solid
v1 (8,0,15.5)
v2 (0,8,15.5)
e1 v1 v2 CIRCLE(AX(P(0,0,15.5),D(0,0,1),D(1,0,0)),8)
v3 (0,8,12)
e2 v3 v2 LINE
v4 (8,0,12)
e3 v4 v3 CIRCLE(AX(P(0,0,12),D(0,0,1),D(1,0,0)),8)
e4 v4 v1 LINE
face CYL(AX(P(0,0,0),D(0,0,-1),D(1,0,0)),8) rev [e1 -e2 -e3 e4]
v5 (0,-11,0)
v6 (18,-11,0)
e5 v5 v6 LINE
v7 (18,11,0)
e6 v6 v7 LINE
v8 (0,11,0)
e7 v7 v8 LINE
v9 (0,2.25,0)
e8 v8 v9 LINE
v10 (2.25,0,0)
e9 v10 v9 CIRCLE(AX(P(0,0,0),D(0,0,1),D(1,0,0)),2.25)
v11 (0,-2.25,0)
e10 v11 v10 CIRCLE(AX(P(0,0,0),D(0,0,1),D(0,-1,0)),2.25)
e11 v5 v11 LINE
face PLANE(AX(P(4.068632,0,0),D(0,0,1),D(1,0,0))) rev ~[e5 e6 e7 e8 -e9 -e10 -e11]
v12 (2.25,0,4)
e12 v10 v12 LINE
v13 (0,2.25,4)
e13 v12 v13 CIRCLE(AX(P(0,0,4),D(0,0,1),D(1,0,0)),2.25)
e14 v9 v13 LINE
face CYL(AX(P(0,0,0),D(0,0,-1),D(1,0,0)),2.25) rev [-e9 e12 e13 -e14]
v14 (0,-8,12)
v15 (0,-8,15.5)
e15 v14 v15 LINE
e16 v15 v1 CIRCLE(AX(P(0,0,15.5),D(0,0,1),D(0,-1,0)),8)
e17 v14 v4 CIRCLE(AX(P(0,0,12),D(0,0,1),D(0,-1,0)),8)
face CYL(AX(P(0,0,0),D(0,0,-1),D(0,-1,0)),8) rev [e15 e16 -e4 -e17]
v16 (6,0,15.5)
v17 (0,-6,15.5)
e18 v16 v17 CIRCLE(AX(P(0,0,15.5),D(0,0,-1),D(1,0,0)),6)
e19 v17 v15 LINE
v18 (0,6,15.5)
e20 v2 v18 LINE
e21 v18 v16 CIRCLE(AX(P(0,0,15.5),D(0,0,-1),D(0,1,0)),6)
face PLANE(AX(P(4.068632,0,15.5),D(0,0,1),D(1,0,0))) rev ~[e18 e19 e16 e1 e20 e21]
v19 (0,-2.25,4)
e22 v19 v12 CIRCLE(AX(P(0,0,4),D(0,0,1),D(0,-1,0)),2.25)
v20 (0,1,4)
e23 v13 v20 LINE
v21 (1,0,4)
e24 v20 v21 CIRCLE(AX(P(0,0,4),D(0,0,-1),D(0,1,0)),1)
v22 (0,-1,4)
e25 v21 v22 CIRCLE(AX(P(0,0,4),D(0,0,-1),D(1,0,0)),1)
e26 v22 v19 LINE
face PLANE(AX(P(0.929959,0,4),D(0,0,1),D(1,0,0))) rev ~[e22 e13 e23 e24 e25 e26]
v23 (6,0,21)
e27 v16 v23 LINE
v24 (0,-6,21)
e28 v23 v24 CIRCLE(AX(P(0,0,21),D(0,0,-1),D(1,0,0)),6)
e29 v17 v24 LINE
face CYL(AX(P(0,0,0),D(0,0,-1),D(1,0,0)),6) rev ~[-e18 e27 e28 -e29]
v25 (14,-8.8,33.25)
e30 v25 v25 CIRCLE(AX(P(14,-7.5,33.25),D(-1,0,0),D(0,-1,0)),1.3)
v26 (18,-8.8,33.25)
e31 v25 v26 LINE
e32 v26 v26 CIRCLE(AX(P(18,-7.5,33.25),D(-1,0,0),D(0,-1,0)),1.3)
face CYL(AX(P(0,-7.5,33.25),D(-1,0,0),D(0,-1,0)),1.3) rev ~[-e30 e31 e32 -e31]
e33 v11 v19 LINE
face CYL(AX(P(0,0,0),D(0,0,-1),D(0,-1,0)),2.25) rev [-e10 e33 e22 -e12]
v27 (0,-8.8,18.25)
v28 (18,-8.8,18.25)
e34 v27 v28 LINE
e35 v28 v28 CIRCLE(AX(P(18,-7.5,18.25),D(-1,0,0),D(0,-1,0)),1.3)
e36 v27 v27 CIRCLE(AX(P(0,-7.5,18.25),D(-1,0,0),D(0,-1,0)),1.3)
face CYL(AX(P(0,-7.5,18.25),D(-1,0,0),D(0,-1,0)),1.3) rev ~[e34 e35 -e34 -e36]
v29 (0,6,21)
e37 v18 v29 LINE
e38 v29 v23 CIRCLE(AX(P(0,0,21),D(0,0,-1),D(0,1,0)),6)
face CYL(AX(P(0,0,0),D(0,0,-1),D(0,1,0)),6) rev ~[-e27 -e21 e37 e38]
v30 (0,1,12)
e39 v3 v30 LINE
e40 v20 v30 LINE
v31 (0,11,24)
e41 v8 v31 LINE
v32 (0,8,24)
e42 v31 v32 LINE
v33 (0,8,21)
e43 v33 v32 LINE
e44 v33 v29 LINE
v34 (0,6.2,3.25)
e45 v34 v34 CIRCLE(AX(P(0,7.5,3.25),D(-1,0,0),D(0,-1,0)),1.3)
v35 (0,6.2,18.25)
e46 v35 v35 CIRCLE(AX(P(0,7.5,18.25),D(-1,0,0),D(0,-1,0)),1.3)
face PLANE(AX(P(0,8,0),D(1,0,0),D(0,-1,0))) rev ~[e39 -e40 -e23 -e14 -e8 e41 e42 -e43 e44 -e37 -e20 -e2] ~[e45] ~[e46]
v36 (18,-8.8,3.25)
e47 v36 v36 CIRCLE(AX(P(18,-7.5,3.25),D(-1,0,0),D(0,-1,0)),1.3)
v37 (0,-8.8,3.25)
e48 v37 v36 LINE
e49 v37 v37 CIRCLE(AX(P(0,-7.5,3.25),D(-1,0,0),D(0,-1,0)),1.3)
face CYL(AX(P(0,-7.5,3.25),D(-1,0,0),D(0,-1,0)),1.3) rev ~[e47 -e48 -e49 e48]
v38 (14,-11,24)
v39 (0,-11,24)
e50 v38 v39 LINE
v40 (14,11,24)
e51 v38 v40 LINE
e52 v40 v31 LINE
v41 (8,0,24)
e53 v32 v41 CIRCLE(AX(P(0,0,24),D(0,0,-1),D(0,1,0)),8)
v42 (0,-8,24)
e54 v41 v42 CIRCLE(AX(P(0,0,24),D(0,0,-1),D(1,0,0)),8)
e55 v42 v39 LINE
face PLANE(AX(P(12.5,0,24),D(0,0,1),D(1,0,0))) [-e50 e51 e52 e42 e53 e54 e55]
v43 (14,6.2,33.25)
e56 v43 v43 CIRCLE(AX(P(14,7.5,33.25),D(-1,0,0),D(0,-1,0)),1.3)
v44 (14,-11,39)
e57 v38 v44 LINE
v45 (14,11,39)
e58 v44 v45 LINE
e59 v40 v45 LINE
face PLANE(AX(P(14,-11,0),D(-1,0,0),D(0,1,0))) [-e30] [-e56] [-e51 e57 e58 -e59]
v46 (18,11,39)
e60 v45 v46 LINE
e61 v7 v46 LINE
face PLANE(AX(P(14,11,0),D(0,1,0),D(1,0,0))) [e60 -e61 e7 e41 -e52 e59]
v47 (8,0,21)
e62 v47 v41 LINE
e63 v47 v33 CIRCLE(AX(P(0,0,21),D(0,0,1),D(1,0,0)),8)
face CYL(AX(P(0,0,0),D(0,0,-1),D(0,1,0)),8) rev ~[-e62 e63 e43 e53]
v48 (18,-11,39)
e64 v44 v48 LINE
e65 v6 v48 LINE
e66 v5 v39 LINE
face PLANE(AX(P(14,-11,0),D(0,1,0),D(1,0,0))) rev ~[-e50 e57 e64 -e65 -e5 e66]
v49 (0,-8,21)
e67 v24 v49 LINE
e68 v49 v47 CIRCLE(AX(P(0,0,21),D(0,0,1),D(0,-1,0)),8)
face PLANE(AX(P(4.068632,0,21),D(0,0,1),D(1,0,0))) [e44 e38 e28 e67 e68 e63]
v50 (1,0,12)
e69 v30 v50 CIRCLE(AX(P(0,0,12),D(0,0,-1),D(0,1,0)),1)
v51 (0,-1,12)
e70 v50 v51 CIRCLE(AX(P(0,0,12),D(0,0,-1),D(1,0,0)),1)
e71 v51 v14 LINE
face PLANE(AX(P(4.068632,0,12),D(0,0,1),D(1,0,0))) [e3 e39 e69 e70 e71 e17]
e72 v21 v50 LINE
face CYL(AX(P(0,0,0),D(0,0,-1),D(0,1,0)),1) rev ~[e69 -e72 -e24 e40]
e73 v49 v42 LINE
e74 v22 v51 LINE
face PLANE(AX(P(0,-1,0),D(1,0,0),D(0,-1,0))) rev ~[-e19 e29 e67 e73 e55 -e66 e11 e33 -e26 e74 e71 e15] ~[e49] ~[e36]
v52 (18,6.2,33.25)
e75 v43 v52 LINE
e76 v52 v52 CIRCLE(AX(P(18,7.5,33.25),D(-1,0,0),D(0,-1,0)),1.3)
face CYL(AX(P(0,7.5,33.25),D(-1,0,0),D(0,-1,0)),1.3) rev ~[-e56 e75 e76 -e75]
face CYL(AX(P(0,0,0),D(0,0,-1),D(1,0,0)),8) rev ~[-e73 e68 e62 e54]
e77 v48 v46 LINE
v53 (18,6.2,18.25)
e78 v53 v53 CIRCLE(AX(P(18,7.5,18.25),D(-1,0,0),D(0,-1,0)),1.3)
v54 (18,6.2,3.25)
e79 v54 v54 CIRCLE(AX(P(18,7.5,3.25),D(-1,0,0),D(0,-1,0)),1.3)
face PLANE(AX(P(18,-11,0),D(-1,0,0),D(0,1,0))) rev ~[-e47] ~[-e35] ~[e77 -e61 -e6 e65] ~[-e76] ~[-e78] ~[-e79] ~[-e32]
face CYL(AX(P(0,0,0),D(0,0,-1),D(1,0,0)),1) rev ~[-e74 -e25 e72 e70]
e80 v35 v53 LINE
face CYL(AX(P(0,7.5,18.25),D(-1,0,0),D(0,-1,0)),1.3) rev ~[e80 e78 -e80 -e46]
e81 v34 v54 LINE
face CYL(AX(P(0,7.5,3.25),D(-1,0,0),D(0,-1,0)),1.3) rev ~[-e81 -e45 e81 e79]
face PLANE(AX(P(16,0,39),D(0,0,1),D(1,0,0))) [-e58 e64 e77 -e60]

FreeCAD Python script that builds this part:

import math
import FreeCAD as App
import Part
import Sketcher
from FreeCAD import Vector


def add_polygon(sketch, points):
    """Adds a closed chain of lines whose ends are joined by coincident constraints."""
    first, n = sketch.GeometryCount, len(points)
    for a, b in zip(points, points[1:] + points[:1]):
        sketch.addGeometry(Part.LineSegment(App.Vector(*a, 0), App.Vector(*b, 0)), False)
    for i in range(n):
        sketch.addConstraint(Sketcher.Constraint("Coincident", first + i, 2, first + (i + 1) % n, 1))

doc = App.newDocument("Part")
body = doc.addObject("PartDesign::Body", "Body")

sketch1 = body.newObject("Sketcher::SketchObject", "Sketch")
sketch1.AttachmentSupport = (doc.getObject("XY_Plane"), [""])
sketch1.MapMode = "FlatFace"
sketch1.addGeometry(Part.LineSegment(Vector(11, 11, 0), Vector(0, 11, 0)), False)
sketch1.addGeometry(Part.LineSegment(Vector(0, 11, 0), Vector(0, 8, 0)), False)
sketch1.addGeometry(Part.ArcOfCircle(Part.Circle(Vector(0, 0, 0), Vector(0, 0, 1), 8), math.radians(0), math.radians(90)), False)
sketch1.addGeometry(Part.ArcOfCircle(Part.Circle(Vector(0, 0, 0), Vector(0, 0, 1), 8), math.radians(-90), math.radians(0)), False)
sketch1.addGeometry(Part.LineSegment(Vector(0, -8, 0), Vector(0, -11, 0)), False)
sketch1.addGeometry(Part.LineSegment(Vector(0, -11, 0), Vector(11, -11, 0)), False)
sketch1.addGeometry(Part.LineSegment(Vector(11, -11, 0), Vector(11, 11, 0)), False)
sketch1.addConstraint(Sketcher.Constraint("Coincident", 0, 2, 1, 1))
sketch1.addConstraint(Sketcher.Constraint("Coincident", 1, 2, 2, 2))
sketch1.addConstraint(Sketcher.Constraint("Tangent", 2, 1, 3, 2))
sketch1.addConstraint(Sketcher.Constraint("Coincident", 3, 1, 4, 1))
sketch1.addConstraint(Sketcher.Constraint("Coincident", 4, 2, 5, 1))
sketch1.addConstraint(Sketcher.Constraint("Coincident", 5, 2, 6, 1))
sketch1.addConstraint(Sketcher.Constraint("Coincident", 6, 2, 0, 1))
sketch1.addConstraint(Sketcher.Constraint("Horizontal", 0))
sketch1.addConstraint(Sketcher.Constraint("Vertical", 1))
sketch1.addConstraint(Sketcher.Constraint("Vertical", 4))
sketch1.addConstraint(Sketcher.Constraint("Horizontal", 5))
sketch1.addConstraint(Sketcher.Constraint("Vertical", 6))
sketch1.addConstraint(Sketcher.Constraint("Coincident", 2, 3, -1, 1))
sketch1.addConstraint(Sketcher.Constraint("Equal", 2, 3))
sketch1.addConstraint(Sketcher.Constraint("Symmetric", 0, 2, 4, 2, -1, 1))
sketch1.addConstraint(Sketcher.Constraint("PointOnObject", 0, 2, -2))
sketch1.addConstraint(Sketcher.Constraint("PointOnObject", 2, 1, -1))
sketch1.addConstraint(Sketcher.Constraint("Radius", 2, 8.0))
sketch1.addConstraint(Sketcher.Constraint("DistanceX", 0, 2, 0, 1, 11.0))
sketch1.addConstraint(Sketcher.Constraint("DistanceY", 1, 2, 1, 1, 3.0))
pad1 = body.newObject("PartDesign::Pad", "Pad")
pad1.Profile = sketch1
pad1.Length = 24

sketch2 = body.newObject("Sketcher::SketchObject", "Sketch001")
sketch2.AttachmentSupport = (doc.getObject("XY_Plane"), [""])
sketch2.MapMode = "FlatFace"
add_polygon(sketch2, [(11, 11), (11, -11), (14, -11), (14, 11)])
sketch2.addConstraint(Sketcher.Constraint("Vertical", 0))
sketch2.addConstraint(Sketcher.Constraint("Horizontal", 1))
sketch2.addConstraint(Sketcher.Constraint("Vertical", 2))
sketch2.addConstraint(Sketcher.Constraint("Horizontal", 3))
sketch2.addConstraint(Sketcher.Constraint("DistanceX", 1, 1, 1, 2, 3.0))
sketch2.addConstraint(Sketcher.Constraint("DistanceY", 0, 2, 0, 1, 22.0))
sketch2.addConstraint(Sketcher.Constraint("DistanceX", -1, 1, 0, 2, 11.0))
sketch2.addConstraint(Sketcher.Constraint("DistanceY", 0, 2, -1, 1, 11.0))
pad2 = body.newObject("PartDesign::Pad", "Pad001")
pad2.Profile = sketch2
pad2.Length = 24

sketch3 = body.newObject("Sketcher::SketchObject", "Sketch002")
sketch3.AttachmentSupport = (doc.getObject("XY_Plane"), [""])
sketch3.MapMode = "FlatFace"
add_polygon(sketch3, [(14, 11), (14, -11), (18, -11), (18, 11)])
sketch3.addConstraint(Sketcher.Constraint("Vertical", 0))
sketch3.addConstraint(Sketcher.Constraint("Horizontal", 1))
sketch3.addConstraint(Sketcher.Constraint("Vertical", 2))
sketch3.addConstraint(Sketcher.Constraint("Horizontal", 3))
sketch3.addConstraint(Sketcher.Constraint("DistanceX", 1, 1, 1, 2, 4.0))
sketch3.addConstraint(Sketcher.Constraint("DistanceY", 0, 2, 0, 1, 22.0))
sketch3.addConstraint(Sketcher.Constraint("DistanceX", -1, 1, 0, 2, 14.0))
sketch3.addConstraint(Sketcher.Constraint("DistanceY", 0, 2, -1, 1, 11.0))
pad3 = body.newObject("PartDesign::Pad", "Pad002")
pad3.Profile = sketch3
pad3.Length = 39

sketch4 = body.newObject("Sketcher::SketchObject", "Sketch003")
sketch4.AttachmentSupport = (doc.getObject("XY_Plane"), [""])
sketch4.MapMode = "FlatFace"
sketch4.addGeometry(Part.ArcOfCircle(Part.Circle(Vector(0, 0, 0), Vector(0, 0, 1), 8), math.radians(0), math.radians(90)), False)
sketch4.addGeometry(Part.LineSegment(Vector(0, 8, 0), Vector(0, 6, 0)), False)
sketch4.addGeometry(Part.ArcOfCircle(Part.Circle(Vector(0, 0, 0), Vector(0, 0, 1), 6), math.radians(0), math.radians(90)), False)
sketch4.addGeometry(Part.ArcOfCircle(Part.Circle(Vector(0, 0, 0), Vector(0, 0, 1), 6), math.radians(-90), math.radians(0)), False)
sketch4.addGeometry(Part.LineSegment(Vector(0, -6, 0), Vector(0, -8, 0)), False)
sketch4.addGeometry(Part.ArcOfCircle(Part.Circle(Vector(0, 0, 0), Vector(0, 0, 1), 8), math.radians(-90), math.radians(0)), False)
sketch4.addConstraint(Sketcher.Constraint("Coincident", 0, 2, 1, 1))
sketch4.addConstraint(Sketcher.Constraint("Coincident", 1, 2, 2, 2))
sketch4.addConstraint(Sketcher.Constraint("Tangent", 2, 1, 3, 2))
sketch4.addConstraint(Sketcher.Constraint("Coincident", 3, 1, 4, 1))
sketch4.addConstraint(Sketcher.Constraint("Coincident", 4, 2, 5, 1))
sketch4.addConstraint(Sketcher.Constraint("Tangent", 5, 2, 0, 1))
sketch4.addConstraint(Sketcher.Constraint("Vertical", 1))
sketch4.addConstraint(Sketcher.Constraint("Vertical", 4))
sketch4.addConstraint(Sketcher.Constraint("Coincident", 0, 3, -1, 1))
sketch4.addConstraint(Sketcher.Constraint("Coincident", 2, 3, -1, 1))
sketch4.addConstraint(Sketcher.Constraint("Equal", 2, 3))
sketch4.addConstraint(Sketcher.Constraint("Equal", 0, 5))
sketch4.addConstraint(Sketcher.Constraint("PointOnObject", 0, 2, -2))
sketch4.addConstraint(Sketcher.Constraint("PointOnObject", 2, 1, -1))
sketch4.addConstraint(Sketcher.Constraint("PointOnObject", 3, 1, -2))
sketch4.addConstraint(Sketcher.Constraint("PointOnObject", 5, 2, -1))
sketch4.addConstraint(Sketcher.Constraint("Radius", 0, 8.0))
sketch4.addConstraint(Sketcher.Constraint("Radius", 2, 6.0))
pad4 = body.newObject("PartDesign::Pad", "Pad003")
pad4.Profile = sketch4
pad4.Length = 21

sketch5 = body.newObject("Sketcher::SketchObject", "Sketch004")
sketch5.AttachmentSupport = (doc.getObject("XY_Plane"), [""])
sketch5.MapMode = "FlatFace"
sketch5.addGeometry(Part.ArcOfCircle(Part.Circle(Vector(0, 0, 0), Vector(0, 0, 1), 8), math.radians(0), math.radians(90)), False)
sketch5.addGeometry(Part.ArcOfCircle(Part.Circle(Vector(0, 0, 0), Vector(0, 0, 1), 8), math.radians(90), math.radians(270)), False)
sketch5.addGeometry(Part.ArcOfCircle(Part.Circle(Vector(0, 0, 0), Vector(0, 0, 1), 8), math.radians(-90), math.radians(0)), False)
sketch5.addGeometry(Part.ArcOfCircle(Part.Circle(Vector(0, 0, 0), Vector(0, 0, 1), 6), math.radians(0), math.radians(90)), False)
sketch5.addGeometry(Part.ArcOfCircle(Part.Circle(Vector(0, 0, 0), Vector(0, 0, 1), 6), math.radians(-90), math.radians(0)), False)
sketch5.addGeometry(Part.ArcOfCircle(Part.Circle(Vector(0, 0, 0), Vector(0, 0, 1), 6), math.radians(90), math.radians(270)), False)
sketch5.addConstraint(Sketcher.Constraint("Tangent", 0, 2, 1, 1))
sketch5.addConstraint(Sketcher.Constraint("Tangent", 1, 2, 2, 1))
sketch5.addConstraint(Sketcher.Constraint("Tangent", 2, 2, 0, 1))
sketch5.addConstraint(Sketcher.Constraint("Tangent", 3, 1, 4, 2))
sketch5.addConstraint(Sketcher.Constraint("Tangent", 4, 1, 5, 2))
sketch5.addConstraint(Sketcher.Constraint("Tangent", 5, 1, 3, 2))
sketch5.addConstraint(Sketcher.Constraint("Coincident", 0, 3, -1, 1))
sketch5.addConstraint(Sketcher.Constraint("Coincident", 3, 3, -1, 1))
sketch5.addConstraint(Sketcher.Constraint("PointOnObject", 0, 2, -2))
sketch5.addConstraint(Sketcher.Constraint("PointOnObject", 1, 2, -2))
sketch5.addConstraint(Sketcher.Constraint("PointOnObject", 2, 2, -1))
sketch5.addConstraint(Sketcher.Constraint("PointOnObject", 3, 1, -1))
sketch5.addConstraint(Sketcher.Constraint("PointOnObject", 4, 1, -2))
sketch5.addConstraint(Sketcher.Constraint("PointOnObject", 5, 1, -2))
sketch5.addConstraint(Sketcher.Constraint("Radius", 0, 8.0))
sketch5.addConstraint(Sketcher.Constraint("Radius", 3, 6.0))
pocket1 = body.newObject("PartDesign::Pocket", "Pocket")
pocket1.Profile = sketch5
pocket1.Length = 15.5
pocket1.Reversed = True

sketch6 = body.newObject("Sketcher::SketchObject", "Sketch005")
sketch6.AttachmentSupport = (doc.getObject("XY_Plane"), [""])
sketch6.MapMode = "FlatFace"
sketch6.addGeometry(Part.ArcOfCircle(Part.Circle(Vector(0, 0, 0), Vector(0, 0, 1), 8), math.radians(0), math.radians(90)), False)
sketch6.addGeometry(Part.LineSegment(Vector(0, 8, 0), Vector(0, 1, 0)), False)
sketch6.addGeometry(Part.ArcOfCircle(Part.Circle(Vector(0, 0, 0), Vector(0, 0, 1), 1), math.radians(0), math.radians(90)), False)
sketch6.addGeometry(Part.ArcOfCircle(Part.Circle(Vector(0, 0, 0), Vector(0, 0, 1), 1), math.radians(-90), math.radians(0)), False)
sketch6.addGeometry(Part.LineSegment(Vector(0, -1, 0), Vector(0, -8, 0)), False)
sketch6.addGeometry(Part.ArcOfCircle(Part.Circle(Vector(0, 0, 0), Vector(0, 0, 1), 8), math.radians(-90), math.radians(0)), False)
sketch6.addConstraint(Sketcher.Constraint("Coincident", 0, 2, 1, 1))
sketch6.addConstraint(Sketcher.Constraint("Coincident", 1, 2, 2, 2))
sketch6.addConstraint(Sketcher.Constraint("Tangent", 2, 1, 3, 2))
sketch6.addConstraint(Sketcher.Constraint("Coincident", 3, 1, 4, 1))
sketch6.addConstraint(Sketcher.Constraint("Coincident", 4, 2, 5, 1))
sketch6.addConstraint(Sketcher.Constraint("Tangent", 5, 2, 0, 1))
sketch6.addConstraint(Sketcher.Constraint("Vertical", 1))
sketch6.addConstraint(Sketcher.Constraint("Vertical", 4))
sketch6.addConstraint(Sketcher.Constraint("Coincident", 0, 3, -1, 1))
sketch6.addConstraint(Sketcher.Constraint("Coincident", 2, 3, -1, 1))
sketch6.addConstraint(Sketcher.Constraint("Equal", 2, 3))
sketch6.addConstraint(Sketcher.Constraint("Equal", 0, 5))
sketch6.addConstraint(Sketcher.Constraint("PointOnObject", 0, 2, -2))
sketch6.addConstraint(Sketcher.Constraint("PointOnObject", 2, 1, -1))
sketch6.addConstraint(Sketcher.Constraint("PointOnObject", 3, 1, -2))
sketch6.addConstraint(Sketcher.Constraint("PointOnObject", 5, 2, -1))
sketch6.addConstraint(Sketcher.Constraint("Radius", 0, 8.0))
sketch6.addConstraint(Sketcher.Constraint("Radius", 2, 1.0))
pad5 = body.newObject("PartDesign::Pad", "Pad004")
pad5.Profile = sketch6
pad5.Length = 12

sketch7 = body.newObject("Sketcher::SketchObject", "Sketch006")
sketch7.AttachmentSupport = (doc.getObject("XY_Plane"), [""])
sketch7.MapMode = "FlatFace"
sketch7.addGeometry(Part.ArcOfCircle(Part.Circle(Vector(0, 0, 0), Vector(0, 0, 1), 2.2), math.radians(0), math.radians(90)), False)
sketch7.addGeometry(Part.ArcOfCircle(Part.Circle(Vector(0, 0, 0), Vector(0, 0, 1), 2.2), math.radians(90), math.radians(270)), False)
sketch7.addGeometry(Part.ArcOfCircle(Part.Circle(Vector(0, 0, 0), Vector(0, 0, 1), 2.2), math.radians(-90), math.radians(0)), False)
sketch7.addGeometry(Part.ArcOfCircle(Part.Circle(Vector(0, 0, 0), Vector(0, 0, 1), 1), math.radians(0), math.radians(90)), False)
sketch7.addGeometry(Part.ArcOfCircle(Part.Circle(Vector(0, 0, 0), Vector(0, 0, 1), 1), math.radians(-90), math.radians(0)), False)
sketch7.addGeometry(Part.ArcOfCircle(Part.Circle(Vector(0, 0, 0), Vector(0, 0, 1), 1), math.radians(90), math.radians(270)), False)
sketch7.addConstraint(Sketcher.Constraint("Tangent", 0, 2, 1, 1))
sketch7.addConstraint(Sketcher.Constraint("Tangent", 1, 2, 2, 1))
sketch7.addConstraint(Sketcher.Constraint("Tangent", 2, 2, 0, 1))
sketch7.addConstraint(Sketcher.Constraint("Tangent", 3, 1, 4, 2))
sketch7.addConstraint(Sketcher.Constraint("Tangent", 4, 1, 5, 2))
sketch7.addConstraint(Sketcher.Constraint("Tangent", 5, 1, 3, 2))
sketch7.addConstraint(Sketcher.Constraint("Coincident", 0, 3, -1, 1))
sketch7.addConstraint(Sketcher.Constraint("Coincident", 3, 3, -1, 1))
sketch7.addConstraint(Sketcher.Constraint("PointOnObject", 0, 2, -2))
sketch7.addConstraint(Sketcher.Constraint("PointOnObject", 1, 2, -2))
sketch7.addConstraint(Sketcher.Constraint("PointOnObject", 2, 2, -1))
sketch7.addConstraint(Sketcher.Constraint("PointOnObject", 3, 1, -1))
sketch7.addConstraint(Sketcher.Constraint("PointOnObject", 4, 1, -2))
sketch7.addConstraint(Sketcher.Constraint("PointOnObject", 5, 1, -2))
sketch7.addConstraint(Sketcher.Constraint("Radius", 3, 1.0))
sketch7.addConstraint(Sketcher.Constraint("Radius", 0, 2.25))
pocket2 = body.newObject("PartDesign::Pocket", "Pocket001")
pocket2.Profile = sketch7
pocket2.Length = 4
pocket2.Reversed = True

sketch8 = body.newObject("Sketcher::SketchObject", "Sketch007")
sketch8.AttachmentSupport = (doc.getObject("YZ_Plane"), [""])
sketch8.MapMode = "FlatFace"
sketch8.addGeometry(Part.Circle(Vector(7.5, 18.2, 0), Vector(0, 0, 1), 1.3), False)
sketch8.addGeometry(Part.Circle(Vector(-7.5, 18.2, 0), Vector(0, 0, 1), 1.3), False)
sketch8.addGeometry(Part.Circle(Vector(-7.5, 3.2, 0), Vector(0, 0, 1), 1.3), False)
sketch8.addGeometry(Part.Circle(Vector(7.5, 3.2, 0), Vector(0, 0, 1), 1.3), False)
sketch8.addGeometry(Part.Circle(Vector(7.5, 33.2, 0), Vector(0, 0, 1), 1.3), False)
sketch8.addGeometry(Part.Circle(Vector(-7.5, 33.2, 0), Vector(0, 0, 1), 1.3), False)
sketch8.addConstraint(Sketcher.Constraint("Equal", 0, 1))
sketch8.addConstraint(Sketcher.Constraint("Equal", 1, 2))
sketch8.addConstraint(Sketcher.Constraint("Equal", 2, 3))
sketch8.addConstraint(Sketcher.Constraint("Equal", 3, 4))
sketch8.addConstraint(Sketcher.Constraint("Equal", 4, 5))
sketch8.addConstraint(Sketcher.Constraint("Symmetric", 0, 3, 1, 3, -2))
sketch8.addConstraint(Sketcher.Constraint("Symmetric", 2, 3, 3, 3, -2))
sketch8.addConstraint(Sketcher.Constraint("Symmetric", 4, 3, 5, 3, -2))
sketch8.addConstraint(Sketcher.Constraint("Vertical", 1, 3, 2, 3))
sketch8.addConstraint(Sketcher.Constraint("Vertical", 3, 3, 4, 3))
sketch8.addConstraint(Sketcher.Constraint("Diameter", 0, 2.6))
sketch8.addConstraint(Sketcher.Constraint("DistanceX", 1, 3, 0, 3, 15.0))
sketch8.addConstraint(Sketcher.Constraint("DistanceY", 2, 3, 1, 3, 15.0))
sketch8.addConstraint(Sketcher.Constraint("DistanceY", 0, 3, 4, 3, 15.0))
sketch8.addConstraint(Sketcher.Constraint("DistanceY", -1, 1, 0, 3, 18.25))
pocket3 = body.newObject("PartDesign::Pocket", "Pocket002")
pocket3.Profile = sketch8
pocket3.Type = "ThroughAll"
pocket3.Reversed = True

doc.recompute()
